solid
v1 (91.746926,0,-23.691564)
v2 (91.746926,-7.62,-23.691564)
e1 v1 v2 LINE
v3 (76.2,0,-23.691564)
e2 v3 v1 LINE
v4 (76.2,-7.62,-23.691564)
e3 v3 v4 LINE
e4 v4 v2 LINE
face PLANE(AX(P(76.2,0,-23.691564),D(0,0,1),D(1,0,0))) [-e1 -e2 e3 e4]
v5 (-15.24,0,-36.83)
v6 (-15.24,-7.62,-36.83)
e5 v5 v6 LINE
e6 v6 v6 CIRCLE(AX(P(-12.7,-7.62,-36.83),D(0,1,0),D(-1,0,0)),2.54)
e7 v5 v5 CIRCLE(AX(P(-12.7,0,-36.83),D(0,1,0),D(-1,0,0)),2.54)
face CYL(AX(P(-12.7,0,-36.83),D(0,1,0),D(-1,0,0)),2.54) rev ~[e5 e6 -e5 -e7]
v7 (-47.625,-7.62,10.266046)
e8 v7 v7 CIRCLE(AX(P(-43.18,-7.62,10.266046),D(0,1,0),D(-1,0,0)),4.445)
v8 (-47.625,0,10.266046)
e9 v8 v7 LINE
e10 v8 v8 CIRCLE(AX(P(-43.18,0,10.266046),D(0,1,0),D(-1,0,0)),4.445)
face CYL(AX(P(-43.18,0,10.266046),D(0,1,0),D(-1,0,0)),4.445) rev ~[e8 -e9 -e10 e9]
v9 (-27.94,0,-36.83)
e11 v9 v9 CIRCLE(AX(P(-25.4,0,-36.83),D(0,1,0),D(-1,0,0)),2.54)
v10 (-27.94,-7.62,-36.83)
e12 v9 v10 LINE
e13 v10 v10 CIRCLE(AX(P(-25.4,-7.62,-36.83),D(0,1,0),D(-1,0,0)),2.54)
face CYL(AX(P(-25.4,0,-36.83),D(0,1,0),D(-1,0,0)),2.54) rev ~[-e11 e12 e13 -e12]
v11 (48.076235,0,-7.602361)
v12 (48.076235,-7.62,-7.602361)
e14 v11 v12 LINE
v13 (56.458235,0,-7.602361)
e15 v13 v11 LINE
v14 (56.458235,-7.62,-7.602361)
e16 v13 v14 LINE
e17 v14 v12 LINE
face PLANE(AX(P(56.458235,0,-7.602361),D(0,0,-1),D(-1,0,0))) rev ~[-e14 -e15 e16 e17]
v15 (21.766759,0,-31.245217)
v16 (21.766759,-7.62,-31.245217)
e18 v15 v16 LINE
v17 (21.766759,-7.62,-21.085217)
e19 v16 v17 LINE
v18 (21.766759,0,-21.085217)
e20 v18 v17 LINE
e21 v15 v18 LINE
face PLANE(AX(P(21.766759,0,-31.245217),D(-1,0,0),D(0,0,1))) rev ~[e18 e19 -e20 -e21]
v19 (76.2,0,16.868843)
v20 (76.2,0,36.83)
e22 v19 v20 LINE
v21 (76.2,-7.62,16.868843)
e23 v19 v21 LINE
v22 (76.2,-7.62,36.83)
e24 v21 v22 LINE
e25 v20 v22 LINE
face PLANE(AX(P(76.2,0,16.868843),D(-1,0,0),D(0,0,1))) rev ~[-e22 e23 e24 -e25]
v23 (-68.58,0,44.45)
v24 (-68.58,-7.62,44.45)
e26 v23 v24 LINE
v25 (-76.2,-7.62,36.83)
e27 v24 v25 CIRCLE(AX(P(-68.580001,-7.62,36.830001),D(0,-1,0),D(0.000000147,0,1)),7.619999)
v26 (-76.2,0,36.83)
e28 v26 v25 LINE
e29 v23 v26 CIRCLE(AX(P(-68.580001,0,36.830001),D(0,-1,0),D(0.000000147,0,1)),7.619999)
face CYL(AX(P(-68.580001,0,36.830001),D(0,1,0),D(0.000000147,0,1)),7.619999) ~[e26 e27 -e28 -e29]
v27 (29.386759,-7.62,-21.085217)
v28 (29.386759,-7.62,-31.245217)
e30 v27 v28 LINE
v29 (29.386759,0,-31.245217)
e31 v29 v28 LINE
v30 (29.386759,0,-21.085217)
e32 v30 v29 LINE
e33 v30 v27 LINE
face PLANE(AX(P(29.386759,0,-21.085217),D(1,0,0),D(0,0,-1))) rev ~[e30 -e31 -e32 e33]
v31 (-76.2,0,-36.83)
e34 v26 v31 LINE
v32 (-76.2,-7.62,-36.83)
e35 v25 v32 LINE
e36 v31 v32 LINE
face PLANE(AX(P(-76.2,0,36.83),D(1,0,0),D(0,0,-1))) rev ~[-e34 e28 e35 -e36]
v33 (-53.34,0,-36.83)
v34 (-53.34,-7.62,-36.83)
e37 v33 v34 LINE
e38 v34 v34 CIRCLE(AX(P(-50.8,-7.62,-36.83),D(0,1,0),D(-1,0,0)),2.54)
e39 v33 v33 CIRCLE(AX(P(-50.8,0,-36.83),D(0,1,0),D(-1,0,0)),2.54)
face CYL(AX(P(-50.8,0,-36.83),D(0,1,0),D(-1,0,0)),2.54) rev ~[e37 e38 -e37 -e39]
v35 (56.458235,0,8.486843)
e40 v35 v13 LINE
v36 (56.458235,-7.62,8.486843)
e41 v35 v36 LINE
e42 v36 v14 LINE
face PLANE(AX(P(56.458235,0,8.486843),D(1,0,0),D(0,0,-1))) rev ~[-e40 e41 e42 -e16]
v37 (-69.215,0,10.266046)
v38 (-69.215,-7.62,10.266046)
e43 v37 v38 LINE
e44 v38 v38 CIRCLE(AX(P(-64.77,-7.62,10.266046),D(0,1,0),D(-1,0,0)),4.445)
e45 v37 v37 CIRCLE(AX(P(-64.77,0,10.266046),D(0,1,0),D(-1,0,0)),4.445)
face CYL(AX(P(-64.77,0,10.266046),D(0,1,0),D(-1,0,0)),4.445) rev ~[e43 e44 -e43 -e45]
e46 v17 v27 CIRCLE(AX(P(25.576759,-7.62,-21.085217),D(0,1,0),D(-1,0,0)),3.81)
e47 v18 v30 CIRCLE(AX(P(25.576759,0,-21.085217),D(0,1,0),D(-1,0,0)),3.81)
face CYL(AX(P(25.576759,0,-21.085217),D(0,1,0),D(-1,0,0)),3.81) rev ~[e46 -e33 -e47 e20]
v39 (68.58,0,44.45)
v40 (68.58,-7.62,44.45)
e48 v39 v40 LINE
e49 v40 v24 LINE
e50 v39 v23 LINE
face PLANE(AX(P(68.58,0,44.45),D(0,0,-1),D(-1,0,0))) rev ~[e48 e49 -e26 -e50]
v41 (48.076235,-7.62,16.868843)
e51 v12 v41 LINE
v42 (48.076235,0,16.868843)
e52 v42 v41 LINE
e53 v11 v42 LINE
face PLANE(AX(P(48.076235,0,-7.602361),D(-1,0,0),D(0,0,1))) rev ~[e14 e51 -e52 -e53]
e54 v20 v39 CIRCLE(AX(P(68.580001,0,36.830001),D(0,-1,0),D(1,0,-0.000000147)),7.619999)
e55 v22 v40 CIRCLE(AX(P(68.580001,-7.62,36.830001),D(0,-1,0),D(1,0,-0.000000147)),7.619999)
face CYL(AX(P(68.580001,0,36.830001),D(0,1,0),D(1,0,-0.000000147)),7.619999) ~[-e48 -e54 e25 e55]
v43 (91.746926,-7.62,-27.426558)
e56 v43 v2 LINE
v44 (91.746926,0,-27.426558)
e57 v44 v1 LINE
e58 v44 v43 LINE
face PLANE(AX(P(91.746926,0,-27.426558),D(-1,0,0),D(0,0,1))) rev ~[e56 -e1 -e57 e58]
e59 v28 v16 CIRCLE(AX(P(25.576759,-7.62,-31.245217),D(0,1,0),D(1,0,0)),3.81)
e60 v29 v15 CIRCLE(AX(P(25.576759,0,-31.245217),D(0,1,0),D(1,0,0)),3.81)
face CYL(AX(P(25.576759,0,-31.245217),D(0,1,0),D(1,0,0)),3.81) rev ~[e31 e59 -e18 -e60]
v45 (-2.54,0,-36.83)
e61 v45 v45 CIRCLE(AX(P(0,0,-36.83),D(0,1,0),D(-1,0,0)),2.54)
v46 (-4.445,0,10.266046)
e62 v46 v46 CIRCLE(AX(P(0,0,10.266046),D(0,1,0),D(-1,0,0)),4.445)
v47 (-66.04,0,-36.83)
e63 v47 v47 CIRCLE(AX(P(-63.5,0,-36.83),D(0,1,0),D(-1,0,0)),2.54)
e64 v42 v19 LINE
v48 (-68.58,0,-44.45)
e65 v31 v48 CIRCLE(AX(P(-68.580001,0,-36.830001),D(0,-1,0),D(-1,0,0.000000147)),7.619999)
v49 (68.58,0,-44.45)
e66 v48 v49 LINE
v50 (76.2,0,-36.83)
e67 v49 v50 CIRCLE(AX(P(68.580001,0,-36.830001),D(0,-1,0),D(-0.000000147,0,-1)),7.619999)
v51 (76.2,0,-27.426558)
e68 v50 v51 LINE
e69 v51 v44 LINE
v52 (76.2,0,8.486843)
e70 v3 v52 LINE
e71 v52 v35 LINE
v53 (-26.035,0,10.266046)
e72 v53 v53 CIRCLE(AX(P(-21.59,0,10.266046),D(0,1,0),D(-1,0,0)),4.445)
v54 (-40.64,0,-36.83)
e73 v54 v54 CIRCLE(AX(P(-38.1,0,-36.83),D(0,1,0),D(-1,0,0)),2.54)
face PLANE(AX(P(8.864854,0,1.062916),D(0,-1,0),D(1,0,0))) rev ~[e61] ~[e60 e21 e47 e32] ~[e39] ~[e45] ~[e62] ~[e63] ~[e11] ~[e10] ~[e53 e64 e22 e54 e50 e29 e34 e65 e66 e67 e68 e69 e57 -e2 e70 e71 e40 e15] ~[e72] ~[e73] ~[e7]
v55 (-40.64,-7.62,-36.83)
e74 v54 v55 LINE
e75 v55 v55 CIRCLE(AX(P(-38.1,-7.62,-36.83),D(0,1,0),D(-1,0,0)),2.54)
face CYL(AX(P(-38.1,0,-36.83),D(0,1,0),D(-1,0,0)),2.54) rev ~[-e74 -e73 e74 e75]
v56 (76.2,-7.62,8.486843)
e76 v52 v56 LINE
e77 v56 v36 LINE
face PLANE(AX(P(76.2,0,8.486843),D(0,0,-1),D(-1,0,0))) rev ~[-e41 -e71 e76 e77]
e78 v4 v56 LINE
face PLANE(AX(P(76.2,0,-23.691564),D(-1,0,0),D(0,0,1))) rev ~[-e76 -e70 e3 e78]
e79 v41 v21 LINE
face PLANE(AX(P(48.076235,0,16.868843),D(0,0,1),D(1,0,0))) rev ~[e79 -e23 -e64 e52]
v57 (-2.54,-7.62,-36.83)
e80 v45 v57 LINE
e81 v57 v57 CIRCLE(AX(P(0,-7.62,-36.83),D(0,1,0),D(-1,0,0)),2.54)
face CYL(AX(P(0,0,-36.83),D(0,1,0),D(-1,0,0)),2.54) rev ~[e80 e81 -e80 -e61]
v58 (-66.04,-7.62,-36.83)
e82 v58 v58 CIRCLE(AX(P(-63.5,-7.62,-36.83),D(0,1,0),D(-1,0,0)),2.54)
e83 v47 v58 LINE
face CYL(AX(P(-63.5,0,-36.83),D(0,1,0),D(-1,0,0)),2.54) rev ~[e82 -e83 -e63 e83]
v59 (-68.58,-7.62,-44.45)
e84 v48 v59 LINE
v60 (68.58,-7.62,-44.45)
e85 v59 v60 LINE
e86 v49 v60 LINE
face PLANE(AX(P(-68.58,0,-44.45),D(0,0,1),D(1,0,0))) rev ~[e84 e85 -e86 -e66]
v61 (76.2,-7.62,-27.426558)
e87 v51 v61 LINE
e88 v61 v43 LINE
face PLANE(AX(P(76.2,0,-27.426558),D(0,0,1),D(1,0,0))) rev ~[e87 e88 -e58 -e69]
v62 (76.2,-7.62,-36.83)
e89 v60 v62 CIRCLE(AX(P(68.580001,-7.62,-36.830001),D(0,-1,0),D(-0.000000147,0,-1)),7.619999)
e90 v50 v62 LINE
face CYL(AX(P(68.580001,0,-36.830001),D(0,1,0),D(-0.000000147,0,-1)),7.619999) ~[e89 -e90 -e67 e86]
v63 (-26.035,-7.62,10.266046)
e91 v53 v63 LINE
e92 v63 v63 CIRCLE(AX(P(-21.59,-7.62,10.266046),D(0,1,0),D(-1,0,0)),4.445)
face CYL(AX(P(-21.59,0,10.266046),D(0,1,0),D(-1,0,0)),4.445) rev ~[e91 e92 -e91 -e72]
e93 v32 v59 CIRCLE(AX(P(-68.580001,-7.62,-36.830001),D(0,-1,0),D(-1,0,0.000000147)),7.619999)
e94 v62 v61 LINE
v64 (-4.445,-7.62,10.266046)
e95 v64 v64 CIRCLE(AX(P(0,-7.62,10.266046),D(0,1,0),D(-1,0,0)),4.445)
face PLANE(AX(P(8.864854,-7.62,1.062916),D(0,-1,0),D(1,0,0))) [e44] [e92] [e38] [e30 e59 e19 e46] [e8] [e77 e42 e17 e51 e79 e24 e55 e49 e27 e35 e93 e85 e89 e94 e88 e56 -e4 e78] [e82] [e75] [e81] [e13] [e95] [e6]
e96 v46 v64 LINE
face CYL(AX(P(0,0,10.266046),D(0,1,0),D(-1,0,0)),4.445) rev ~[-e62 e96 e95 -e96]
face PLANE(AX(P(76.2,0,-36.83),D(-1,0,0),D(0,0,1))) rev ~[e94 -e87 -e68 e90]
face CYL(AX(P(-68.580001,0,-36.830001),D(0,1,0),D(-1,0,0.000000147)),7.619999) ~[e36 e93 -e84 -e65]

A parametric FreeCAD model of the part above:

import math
import FreeCAD as App
import Part
import Sketcher

V = App.Vector
Q = App.Units.Quantity

doc = App.newDocument("Part")
params = doc.addObject("Spreadsheet::Sheet", "Params")
for row, (alias, value) in enumerate([
    ("sketch1_diameter", "0.2 in"),
    ("sketch1_radius", "0.3 in"),
    ("sketch1_diameter2", "0.35 in"),
    ("sketch1_radius2", "0.15 in"),
    ("sketch1_width", "5.4 in"),
    ("pad1_length", "0.3 in"),
], start=1):
    params.set(f"A{row}", alias)
    params.set(f"B{row}", "=" + value)
    params.setAlias(f"B{row}", alias)

body = doc.addObject("PartDesign::Body", "Body")

sketch1 = body.newObject("Sketcher::SketchObject", "Sketch")
sketch1.AttachmentSupport = (doc.getObject("XZ_Plane"), [""])
sketch1.MapMode = "FlatFace"
sketch1.addGeometry([
    Part.ArcOfCircle(Part.Circle(V(68.6, 36.8, 0), V(0, 0, 1), 7.6), math.radians(0), math.radians(90)),
    Part.LineSegment(V(68.6, 44.5, 0), V(-68.6, 44.5, 0)),
    Part.ArcOfCircle(Part.Circle(V(-68.6, 36.8, 0), V(0, 0, 1), 7.6), math.radians(90), math.radians(180)),
    Part.LineSegment(V(-76.2, 36.8, 0), V(-76.2, -36.8, 0)),
    Part.ArcOfCircle(Part.Circle(V(-68.6, -36.8, 0), V(0, 0, 1), 7.6), math.radians(180), math.radians(270)),
    Part.LineSegment(V(-68.6, -44.5, 0), V(68.6, -44.5, 0)),
    Part.ArcOfCircle(Part.Circle(V(68.6, -36.8, 0), V(0, 0, 1), 7.6), math.radians(-90), math.radians(0)),
    Part.LineSegment(V(76.2, -36.8, 0), V(76.2, -27.4, 0)),
    Part.LineSegment(V(76.2, -27.4, 0), V(91.7, -27.4, 0)),
    Part.LineSegment(V(91.7, -27.4, 0), V(91.7, -23.7, 0)),
    Part.LineSegment(V(91.7, -23.7, 0), V(76.2, -23.7, 0)),
    Part.LineSegment(V(76.2, -23.7, 0), V(76.2, 8.5, 0)),
    Part.LineSegment(V(76.2, 8.5, 0), V(56.5, 8.5, 0)),
    Part.LineSegment(V(56.5, 8.5, 0), V(56.5, -7.6, 0)),
    Part.LineSegment(V(56.5, -7.6, 0), V(48.1, -7.6, 0)),
    Part.LineSegment(V(48.1, -7.6, 0), V(48.1, 16.9, 0)),
    Part.LineSegment(V(48.1, 16.9, 0), V(76.2, 16.9, 0)),
    Part.LineSegment(V(76.2, 16.9, 0), V(76.2, 36.8, 0)),
    Part.Circle(V(-63.5, -36.8, 0), V(0, 0, 1), 2.5),
    Part.Circle(V(-50.8, -36.8, 0), V(0, 0, 1), 2.5),
    Part.Circle(V(-38.1, -36.8, 0), V(0, 0, 1), 2.5),
    Part.Circle(V(-25.4, -36.8, 0), V(0, 0, 1), 2.5),
    Part.Circle(V(-12.7, -36.8, 0), V(0, 0, 1), 2.5),
    Part.Circle(V(0, -36.8, 0), V(0, 0, 1), 2.5),
    Part.LineSegment(V(29.4, -21.1, 0), V(29.4, -31.2, 0)),
    Part.ArcOfCircle(Part.Circle(V(25.6, -31.2, 0), V(0, 0, 1), 3.8), math.radians(180), math.radians(360)),
    Part.LineSegment(V(21.8, -31.2, 0), V(21.8, -21.1, 0)),
    Part.ArcOfCircle(Part.Circle(V(25.6, -21.1, 0), V(0, 0, 1), 3.8), math.radians(0), math.radians(180)),
    Part.Circle(V(-64.8, 10.3, 0), V(0, 0, 1), 4.4),
    Part.Circle(V(-43.2, 10.3, 0), V(0, 0, 1), 4.4),
    Part.Circle(V(-21.6, 10.3, 0), V(0, 0, 1), 4.4),
    Part.Circle(V(0, 10.3, 0), V(0, 0, 1), 4.4),
], False)
sketch1.addConstraint([
    Sketcher.Constraint("Tangent", 0, 2, 1, 1),
    Sketcher.Constraint("Tangent", 1, 2, 2, 1),
    Sketcher.Constraint("Tangent", 2, 2, 3, 1),
    Sketcher.Constraint("Tangent", 3, 2, 4, 1),
    Sketcher.Constraint("Tangent", 4, 2, 5, 1),
    Sketcher.Constraint("Tangent", 5, 2, 6, 1),
    Sketcher.Constraint("Tangent", 6, 2, 7, 1),
    Sketcher.Constraint("Coincident", 7, 2, 8, 1),
    Sketcher.Constraint("Coincident", 8, 2, 9, 1),
    Sketcher.Constraint("Coincident", 9, 2, 10, 1),
    Sketcher.Constraint("Coincident", 10, 2, 11, 1),
    Sketcher.Constraint("Coincident", 11, 2, 12, 1),
    Sketcher.Constraint("Coincident", 12, 2, 13, 1),
    Sketcher.Constraint("Coincident", 13, 2, 14, 1),
    Sketcher.Constraint("Coincident", 14, 2, 15, 1),
    Sketcher.Constraint("Coincident", 15, 2, 16, 1),
    Sketcher.Constraint("Coincident", 16, 2, 17, 1),
    Sketcher.Constraint("Tangent", 17, 2, 0, 1),
    Sketcher.Constraint("Tangent", 24, 2, 25, 2),
    Sketcher.Constraint("Tangent", 25, 1, 26, 1),
    Sketcher.Constraint("Tangent", 26, 2, 27, 2),
    Sketcher.Constraint("Tangent", 27, 1, 24, 1),
    Sketcher.Constraint("Horizontal", 1),
    Sketcher.Constraint("Vertical", 3),
    Sketcher.Constraint("Horizontal", 5),
    Sketcher.Constraint("Vertical", 7),
    Sketcher.Constraint("Horizontal", 8),
    Sketcher.Constraint("Vertical", 9),
    Sketcher.Constraint("Horizontal", 10),
    Sketcher.Constraint("Vertical", 11),
    Sketcher.Constraint("Horizontal", 12),
    Sketcher.Constraint("Vertical", 13),
    Sketcher.Constraint("Horizontal", 14),
    Sketcher.Constraint("Vertical", 15),
    Sketcher.Constraint("Horizontal", 16),
    Sketcher.Constraint("Vertical", 17),
    Sketcher.Constraint("Vertical", 24),
    Sketcher.Constraint("Vertical", 26),
    Sketcher.Constraint("Equal", 0, 2),
    Sketcher.Constraint("Equal", 2, 4),
    Sketcher.Constraint("Equal", 4, 6),
    Sketcher.Constraint("Equal", 18, 19),
    Sketcher.Constraint("Equal", 19, 20),
    Sketcher.Constraint("Equal", 20, 21),
    Sketcher.Constraint("Equal", 21, 22),
    Sketcher.Constraint("Equal", 22, 23),
    Sketcher.Constraint("Equal", 28, 29),
    Sketcher.Constraint("Equal", 29, 30),
    Sketcher.Constraint("Equal", 30, 31),
    Sketcher.Constraint("Symmetric", 0, 3, 4, 3, -1, 1),
    Sketcher.Constraint("PointOnObject", 23, 3, -2),
    Sketcher.Constraint("PointOnObject", 31, 3, -2),
    Sketcher.Constraint("Horizontal", 6, 3, 18, 3),
    Sketcher.Constraint("Horizontal", 18, 3, 19, 3),
    Sketcher.Constraint("Horizontal", 19, 3, 20, 3),
    Sketcher.Constraint("Horizontal", 20, 3, 21, 3),
    Sketcher.Constraint("Horizontal", 21, 3, 22, 3),
    Sketcher.Constraint("Horizontal", 22, 3, 23, 3),
    Sketcher.Constraint("Horizontal", 28, 3, 29, 3),
    Sketcher.Constraint("Horizontal", 29, 3, 30, 3),
    Sketcher.Constraint("Horizontal", 30, 3, 31, 3),
    Sketcher.Constraint("Vertical", 0, 3, 6, 3),
    Sketcher.Constraint("Vertical", 7, 2, 10, 2),
    Sketcher.Constraint("Diameter", 18, Q("0.2 in")),
    Sketcher.Constraint("Radius", 0, Q("0.3 in")),
    Sketcher.Constraint("Diameter", 28, Q("0.35 in")),
    Sketcher.Constraint("Radius", 25, Q("0.15 in")),
    Sketcher.Constraint("DistanceX", 1, 2, 1, 1, Q("5.4 in")),
    Sketcher.Constraint("DistanceY", 3, 2, 3, 1, Q("2.9 in")),
    Sketcher.Constraint("DistanceY", 24, 2, 24, 1, Q("0.4 in")),
    Sketcher.Constraint("DistanceX", 19, 3, -1, 1, Q("2 in")),
    Sketcher.Constraint("DistanceX", 21, 3, -1, 1, Q("1 in")),
    Sketcher.Constraint("DistanceX", 18, 3, 20, 3, Q("1 in")),
    Sketcher.Constraint("DistanceX", 20, 3, 22, 3, Q("1 in")),
    Sketcher.Constraint("DistanceX", 2, 3, 29, 3, Q("1 in")),
    Sketcher.Constraint("DistanceX", 14, 2, 14, 1, Q("0.33 in")),
    Sketcher.Constraint("DistanceX", 18, 3, -1, 1, Q("2.5 in")),
    Sketcher.Constraint("DistanceX", 28, 3, 30, 3, Q("1.7 in")),
    Sketcher.Constraint("DistanceX", 28, 3, -1, 1, Q("2.55 in")),
    Sketcher.Constraint("DistanceY", 12, 2, 15, 2, Q("0.33 in")),
    Sketcher.Constraint("DistanceY", 7, 1, 7, 2, 9.403441),
    Sketcher.Constraint("DistanceY", 7, 2, 11, 2, 35.913401),
    Sketcher.Constraint("DistanceX", 8, 1, 8, 2, 15.546926),
    Sketcher.Constraint("DistanceX", 12, 2, 12, 1, 19.741765),
    Sketcher.Constraint("DistanceY", 9, 1, 9, 2, 3.734995),
    Sketcher.Constraint("DistanceY", 13, 2, 13, 1, 16.089204),
    Sketcher.Constraint("DistanceX", -1, 1, 25, 3, 25.576759),
    Sketcher.Constraint("DistanceY", 25, 3, 7, 2, 3.818659),
    Sketcher.Constraint("DistanceY", -1, 1, 28, 3, 10.266046),
])
sketch1.setExpression("Constraints[63]", "Params.sketch1_diameter")
sketch1.setExpression("Constraints[64]", "Params.sketch1_radius")
sketch1.setExpression("Constraints[65]", "Params.sketch1_diameter2")
sketch1.setExpression("Constraints[66]", "Params.sketch1_radius2")
sketch1.setExpression("Constraints[67]", "Params.sketch1_width")
pad1 = body.newObject("PartDesign::Pad", "Pad")
pad1.Profile = sketch1
pad1.setExpression("Length", "Params.pad1_length")

doc.recompute()
